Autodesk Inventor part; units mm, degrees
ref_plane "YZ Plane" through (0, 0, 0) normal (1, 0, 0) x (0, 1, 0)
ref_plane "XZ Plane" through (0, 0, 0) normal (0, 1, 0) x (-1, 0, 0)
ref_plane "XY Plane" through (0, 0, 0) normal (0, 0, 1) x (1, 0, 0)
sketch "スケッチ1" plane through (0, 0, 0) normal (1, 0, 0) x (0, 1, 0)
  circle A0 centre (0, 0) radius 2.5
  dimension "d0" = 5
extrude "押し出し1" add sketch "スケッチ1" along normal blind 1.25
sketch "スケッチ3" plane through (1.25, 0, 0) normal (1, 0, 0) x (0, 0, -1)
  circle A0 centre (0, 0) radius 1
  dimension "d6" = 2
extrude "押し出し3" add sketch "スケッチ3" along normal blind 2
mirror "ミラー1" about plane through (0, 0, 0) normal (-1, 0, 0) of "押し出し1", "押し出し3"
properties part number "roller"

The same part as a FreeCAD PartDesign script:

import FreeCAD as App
import Part
import Sketcher

doc = App.newDocument("Part")
body = doc.addObject("PartDesign::Body", "Body")

# Sketch on YZ plane
sketch1 = body.newObject("Sketcher::SketchObject", "Sketch")
sketch1.AttachmentSupport = (doc.getObject("YZ_Plane"), [""])
sketch1.MapMode = "FlatFace"
sketch1.addGeometry(Part.Circle(App.Vector(0, 0, 0), App.Vector(0, 0, 1), 2.5), False)
sketch1.addConstraint([
    Sketcher.Constraint("Coincident", 0, 3, -1, 1),
    Sketcher.Constraint("Diameter", 0, 5.0),
])
pad1 = body.newObject("PartDesign::Pad", "Pad")
pad1.Profile = sketch1
pad1.Length = 1.25

# Sketch on YZ plane
sketch2 = body.newObject("Sketcher::SketchObject", "Sketch001")
sketch2.AttachmentSupport = (doc.getObject("YZ_Plane"), [""])
sketch2.MapMode = "FlatFace"
sketch2.AttachmentOffset = App.Placement(App.Vector(0, 0, 1.25), App.Rotation())
sketch2.addGeometry(Part.Circle(App.Vector(0, 0, 0), App.Vector(0, 0, 1), 1), False)
sketch2.addConstraint([
    Sketcher.Constraint("Coincident", 0, 3, -1, 1),
    Sketcher.Constraint("Diameter", 0, 2.0),
])
pad2 = body.newObject("PartDesign::Pad", "Pad001")
pad2.Profile = sketch2
pad2.Length = 2
doc.recompute()

mirrored = body.newObject("PartDesign::Mirrored", "Mirrored")
mirrored.Originals = [pad1, pad2]
mirrored.MirrorPlane = (doc.getObject("YZ_Plane"), [""])
body.Tip = mirrored

doc.recompute()
